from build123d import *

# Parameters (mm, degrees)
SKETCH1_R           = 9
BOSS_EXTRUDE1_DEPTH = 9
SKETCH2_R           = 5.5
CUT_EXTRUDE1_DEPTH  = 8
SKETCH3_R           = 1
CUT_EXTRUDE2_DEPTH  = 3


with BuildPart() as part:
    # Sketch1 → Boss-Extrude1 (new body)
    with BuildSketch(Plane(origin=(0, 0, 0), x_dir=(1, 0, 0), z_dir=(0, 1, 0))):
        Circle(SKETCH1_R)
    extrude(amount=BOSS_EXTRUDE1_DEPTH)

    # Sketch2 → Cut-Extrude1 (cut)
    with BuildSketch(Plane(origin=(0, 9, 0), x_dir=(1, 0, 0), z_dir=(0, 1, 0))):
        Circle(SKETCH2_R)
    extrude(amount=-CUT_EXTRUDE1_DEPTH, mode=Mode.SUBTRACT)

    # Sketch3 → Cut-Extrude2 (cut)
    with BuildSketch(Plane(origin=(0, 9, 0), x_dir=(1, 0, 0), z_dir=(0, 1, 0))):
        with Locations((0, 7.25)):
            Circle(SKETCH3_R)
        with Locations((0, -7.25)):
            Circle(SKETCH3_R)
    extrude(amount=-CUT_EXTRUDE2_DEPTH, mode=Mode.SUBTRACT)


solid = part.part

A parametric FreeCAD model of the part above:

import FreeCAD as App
import Part
import Sketcher
from FreeCAD import Vector

doc = App.newDocument("Part")
body = doc.addObject("PartDesign::Body", "Body")

# Sketch on XZ plane
sketch1 = body.newObject("Sketcher::SketchObject", "Sketch")
sketch1.AttachmentSupport = (doc.getObject("XZ_Plane"), [""])
sketch1.MapMode = "FlatFace"
sketch1.addGeometry(Part.Circle(Vector(0, 0, 0), Vector(0, 0, 1), 9), False)
sketch1.addConstraint([
    Sketcher.Constraint("Coincident", 0, 3, -1, 1),
    Sketcher.Constraint("Diameter", 0, 18.0),
])
pad1 = body.newObject("PartDesign::Pad", "Pad")
pad1.Profile = sketch1
pad1.Length = 9
pad1.Reversed = True

# Sketch on XZ plane
sketch2 = body.newObject("Sketcher::SketchObject", "Sketch001")
sketch2.AttachmentSupport = (doc.getObject("XZ_Plane"), [""])
sketch2.MapMode = "FlatFace"
sketch2.AttachmentOffset = App.Placement(Vector(0, 0, -9), App.Rotation())
sketch2.addGeometry(Part.Circle(Vector(0, 0, 0), Vector(0, 0, 1), 6), False)
sketch2.addConstraint([
    Sketcher.Constraint("Coincident", 0, 3, -1, 1),
    Sketcher.Constraint("Diameter", 0, 11.0),
])
pocket1 = body.newObject("PartDesign::Pocket", "Pocket")
pocket1.Profile = sketch2
pocket1.Length = 8
pocket1.Reversed = True

# Sketch on XZ plane
sketch3 = body.newObject("Sketcher::SketchObject", "Sketch002")
sketch3.AttachmentSupport = (doc.getObject("XZ_Plane"), [""])
sketch3.MapMode = "FlatFace"
sketch3.AttachmentOffset = App.Placement(Vector(0, 0, -9), App.Rotation())
sketch3.addGeometry([
    Part.Circle(Vector(0, -7.2, 0), Vector(0, 0, 1), 1),
    Part.Circle(Vector(0, 7.2, 0), Vector(0, 0, 1), 1),
], False)
sketch3.addConstraint([
    Sketcher.Constraint("Equal", 0, 1),
    Sketcher.Constraint("Symmetric", 0, 3, 1, 3, -1, 1),
    Sketcher.Constraint("PointOnObject", 0, 3, -2),
    Sketcher.Constraint("Diameter", 0, 2.0),
    Sketcher.Constraint("DistanceY", 0, 3, 1, 3, 14.5),
])
pocket2 = body.newObject("PartDesign::Pocket", "Pocket001")
pocket2.Profile = sketch3
pocket2.Length = 3
pocket2.Reversed = True

doc.recompute()
